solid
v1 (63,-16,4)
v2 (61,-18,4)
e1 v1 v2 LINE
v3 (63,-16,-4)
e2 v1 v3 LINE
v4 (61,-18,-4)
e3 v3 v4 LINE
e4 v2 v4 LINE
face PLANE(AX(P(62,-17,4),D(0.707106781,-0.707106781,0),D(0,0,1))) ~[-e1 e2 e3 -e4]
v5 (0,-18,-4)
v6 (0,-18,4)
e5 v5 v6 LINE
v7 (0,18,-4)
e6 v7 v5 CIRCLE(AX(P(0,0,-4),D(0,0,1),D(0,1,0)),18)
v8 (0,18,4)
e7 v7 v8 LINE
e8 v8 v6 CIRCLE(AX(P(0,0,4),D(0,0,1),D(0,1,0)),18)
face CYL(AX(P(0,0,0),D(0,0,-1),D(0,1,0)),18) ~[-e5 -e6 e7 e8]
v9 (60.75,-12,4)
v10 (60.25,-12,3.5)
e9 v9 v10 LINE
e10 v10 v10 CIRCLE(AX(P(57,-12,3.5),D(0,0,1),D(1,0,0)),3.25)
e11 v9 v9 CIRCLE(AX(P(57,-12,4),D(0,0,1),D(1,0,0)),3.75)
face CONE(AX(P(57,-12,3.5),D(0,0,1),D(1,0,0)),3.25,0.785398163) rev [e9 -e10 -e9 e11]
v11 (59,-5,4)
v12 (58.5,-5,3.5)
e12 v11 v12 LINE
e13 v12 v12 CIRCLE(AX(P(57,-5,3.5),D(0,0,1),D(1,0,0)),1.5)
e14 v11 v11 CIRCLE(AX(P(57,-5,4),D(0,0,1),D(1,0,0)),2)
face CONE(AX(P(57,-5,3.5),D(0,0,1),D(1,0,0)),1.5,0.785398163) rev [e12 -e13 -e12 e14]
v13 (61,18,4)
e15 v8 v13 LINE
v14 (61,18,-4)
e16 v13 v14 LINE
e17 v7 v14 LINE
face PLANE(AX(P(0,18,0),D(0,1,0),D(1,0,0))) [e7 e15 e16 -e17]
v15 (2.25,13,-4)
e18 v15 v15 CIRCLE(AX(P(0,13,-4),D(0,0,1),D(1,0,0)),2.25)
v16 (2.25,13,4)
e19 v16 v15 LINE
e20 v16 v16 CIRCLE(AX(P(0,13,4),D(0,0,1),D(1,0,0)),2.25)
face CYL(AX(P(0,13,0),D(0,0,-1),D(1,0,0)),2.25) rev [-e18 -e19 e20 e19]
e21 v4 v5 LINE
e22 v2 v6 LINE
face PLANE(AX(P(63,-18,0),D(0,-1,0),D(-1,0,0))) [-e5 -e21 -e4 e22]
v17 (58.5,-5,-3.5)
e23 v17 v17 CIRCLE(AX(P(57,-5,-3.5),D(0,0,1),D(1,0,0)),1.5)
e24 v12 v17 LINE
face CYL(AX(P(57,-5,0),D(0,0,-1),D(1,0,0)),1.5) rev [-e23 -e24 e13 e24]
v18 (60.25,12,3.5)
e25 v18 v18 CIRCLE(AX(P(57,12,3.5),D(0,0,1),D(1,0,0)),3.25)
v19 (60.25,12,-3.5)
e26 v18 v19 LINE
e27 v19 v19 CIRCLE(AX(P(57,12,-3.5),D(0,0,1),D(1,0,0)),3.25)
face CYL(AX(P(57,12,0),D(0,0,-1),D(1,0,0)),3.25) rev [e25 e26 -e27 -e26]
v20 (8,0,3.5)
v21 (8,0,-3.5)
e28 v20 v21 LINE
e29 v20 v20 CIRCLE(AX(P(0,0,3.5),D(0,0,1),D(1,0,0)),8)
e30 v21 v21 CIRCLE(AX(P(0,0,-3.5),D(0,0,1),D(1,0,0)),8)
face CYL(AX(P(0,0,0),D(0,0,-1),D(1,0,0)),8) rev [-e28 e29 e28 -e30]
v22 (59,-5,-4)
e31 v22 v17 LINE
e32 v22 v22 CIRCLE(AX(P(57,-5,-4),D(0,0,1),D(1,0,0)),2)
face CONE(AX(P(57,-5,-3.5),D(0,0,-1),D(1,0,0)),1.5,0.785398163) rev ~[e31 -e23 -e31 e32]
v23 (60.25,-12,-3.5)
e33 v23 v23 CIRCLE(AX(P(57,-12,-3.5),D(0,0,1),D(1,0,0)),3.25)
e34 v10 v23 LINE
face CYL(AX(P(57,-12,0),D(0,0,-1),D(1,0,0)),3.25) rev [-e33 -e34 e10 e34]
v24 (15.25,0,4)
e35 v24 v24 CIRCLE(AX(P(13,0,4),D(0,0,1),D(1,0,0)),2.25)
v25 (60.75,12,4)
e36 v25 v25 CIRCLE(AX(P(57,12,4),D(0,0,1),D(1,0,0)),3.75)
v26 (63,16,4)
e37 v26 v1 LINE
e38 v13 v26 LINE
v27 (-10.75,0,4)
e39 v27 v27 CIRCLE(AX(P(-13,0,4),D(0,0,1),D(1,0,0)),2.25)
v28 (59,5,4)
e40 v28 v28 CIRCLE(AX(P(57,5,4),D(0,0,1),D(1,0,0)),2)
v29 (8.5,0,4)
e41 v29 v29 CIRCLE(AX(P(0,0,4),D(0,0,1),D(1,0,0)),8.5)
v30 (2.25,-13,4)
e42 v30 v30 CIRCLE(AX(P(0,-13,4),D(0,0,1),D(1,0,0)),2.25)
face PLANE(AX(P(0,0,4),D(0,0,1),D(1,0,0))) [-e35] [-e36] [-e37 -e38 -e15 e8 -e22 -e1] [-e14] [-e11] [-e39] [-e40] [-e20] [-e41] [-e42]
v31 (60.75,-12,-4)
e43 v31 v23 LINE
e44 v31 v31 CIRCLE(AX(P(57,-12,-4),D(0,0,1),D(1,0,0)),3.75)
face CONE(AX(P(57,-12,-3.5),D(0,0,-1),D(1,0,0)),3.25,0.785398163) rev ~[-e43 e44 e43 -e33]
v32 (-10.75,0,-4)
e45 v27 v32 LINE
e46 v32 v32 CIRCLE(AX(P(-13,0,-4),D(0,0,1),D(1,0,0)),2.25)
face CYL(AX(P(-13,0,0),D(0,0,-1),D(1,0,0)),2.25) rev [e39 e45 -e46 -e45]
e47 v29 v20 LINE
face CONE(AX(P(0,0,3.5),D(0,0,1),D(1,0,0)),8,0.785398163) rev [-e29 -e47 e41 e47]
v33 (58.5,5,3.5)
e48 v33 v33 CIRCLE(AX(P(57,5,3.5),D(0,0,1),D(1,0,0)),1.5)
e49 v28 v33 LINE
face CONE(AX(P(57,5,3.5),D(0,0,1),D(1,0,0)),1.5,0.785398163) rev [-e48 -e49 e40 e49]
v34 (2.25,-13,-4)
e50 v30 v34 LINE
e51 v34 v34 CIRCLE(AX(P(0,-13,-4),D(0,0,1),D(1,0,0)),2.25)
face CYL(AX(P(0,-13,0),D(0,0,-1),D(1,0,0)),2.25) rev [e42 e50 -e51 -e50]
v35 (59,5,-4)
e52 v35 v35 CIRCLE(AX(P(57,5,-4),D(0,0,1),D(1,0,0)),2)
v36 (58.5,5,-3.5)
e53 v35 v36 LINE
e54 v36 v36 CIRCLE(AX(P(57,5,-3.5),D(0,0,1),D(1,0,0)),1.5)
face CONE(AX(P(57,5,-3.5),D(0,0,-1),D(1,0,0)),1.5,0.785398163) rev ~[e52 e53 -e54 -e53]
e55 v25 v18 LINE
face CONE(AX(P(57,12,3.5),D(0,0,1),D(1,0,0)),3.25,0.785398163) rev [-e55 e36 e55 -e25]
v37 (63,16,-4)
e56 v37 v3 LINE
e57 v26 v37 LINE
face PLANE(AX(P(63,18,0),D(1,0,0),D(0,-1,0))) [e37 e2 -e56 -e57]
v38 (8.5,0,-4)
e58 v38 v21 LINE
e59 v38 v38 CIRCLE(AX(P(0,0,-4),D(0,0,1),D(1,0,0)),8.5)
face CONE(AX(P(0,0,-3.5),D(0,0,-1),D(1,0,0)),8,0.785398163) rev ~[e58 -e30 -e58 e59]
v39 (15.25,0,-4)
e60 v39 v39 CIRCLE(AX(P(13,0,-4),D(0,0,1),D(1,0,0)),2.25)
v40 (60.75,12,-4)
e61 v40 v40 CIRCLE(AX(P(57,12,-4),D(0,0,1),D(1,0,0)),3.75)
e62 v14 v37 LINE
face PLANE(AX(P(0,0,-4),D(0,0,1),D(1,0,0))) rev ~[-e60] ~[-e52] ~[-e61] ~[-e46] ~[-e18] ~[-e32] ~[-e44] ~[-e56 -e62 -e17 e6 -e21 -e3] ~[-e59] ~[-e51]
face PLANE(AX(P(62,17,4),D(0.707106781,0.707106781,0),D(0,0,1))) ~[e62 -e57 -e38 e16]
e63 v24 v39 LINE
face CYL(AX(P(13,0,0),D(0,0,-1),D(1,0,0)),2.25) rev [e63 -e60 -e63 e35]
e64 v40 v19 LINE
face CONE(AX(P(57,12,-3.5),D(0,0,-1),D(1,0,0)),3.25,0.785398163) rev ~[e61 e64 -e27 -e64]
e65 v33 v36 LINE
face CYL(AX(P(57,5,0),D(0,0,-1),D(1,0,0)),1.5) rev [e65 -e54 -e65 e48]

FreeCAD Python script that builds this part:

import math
import FreeCAD as App
import Part
import Sketcher
from FreeCAD import Vector
Q = App.Units.Quantity


def edges_at(feature, points):
    """Names of the edges that pass closest to the given points."""
    edges = feature.Shape.Edges
    near = lambda p: min(range(len(edges)), key=lambda i: edges[i].distToShape(Part.Vertex(*p))[0])
    return sorted({f"Edge{near(p) + 1}" for p in points})

doc = App.newDocument("Part")
body = doc.addObject("PartDesign::Body", "Body")

# Sketch on XY plane
sketch1 = body.newObject("Sketcher::SketchObject", "Sketch")
sketch1.AttachmentSupport = (doc.getObject("XY_Plane"), [""])
sketch1.MapMode = "FlatFace"
sketch1.addGeometry([
    Part.LineSegment(Vector(63, 18, 0), Vector(0, 18, 0)),  # 0
    Part.ArcOfCircle(Part.Circle(Vector(0, 0, 0), Vector(0, 0, 1), 18), math.radians(90), math.radians(270)),  # 1
    Part.LineSegment(Vector(0, -18, 0), Vector(63, -18, 0)),  # 2
    Part.LineSegment(Vector(63, -18, 0), Vector(63, 18, 0)),  # 3
    Part.Circle(Vector(0, -13, 0), Vector(0, 0, 1), 2.2),  # 4
    Part.Circle(Vector(57, -12, 0), Vector(0, 0, 1), 3.2),  # 5
    Part.Circle(Vector(57, -5, 0), Vector(0, 0, 1), 1.5),  # 6
    Part.Circle(Vector(-13, 0, 0), Vector(0, 0, 1), 2.2),  # 7
    Part.Circle(Vector(0, 0, 0), Vector(0, 0, 1), 8),  # 8
    Part.Circle(Vector(13, 0, 0), Vector(0, 0, 1), 2.2),  # 9
    Part.Circle(Vector(0, 13, 0), Vector(0, 0, 1), 2.2),  # 10
    Part.Circle(Vector(57, 5, 0), Vector(0, 0, 1), 1.5),  # 11
    Part.Circle(Vector(57, 12, 0), Vector(0, 0, 1), 3.2),  # 12
], False)
sketch1.addConstraint([
    Sketcher.Constraint("Tangent", 0, 2, 1, 1),
    Sketcher.Constraint("Tangent", 1, 2, 2, 1),
    Sketcher.Constraint("Coincident", 2, 2, 3, 1),
    Sketcher.Constraint("Coincident", 3, 2, 0, 1),
    Sketcher.Constraint("Horizontal", 0),
    Sketcher.Constraint("Horizontal", 2),
    Sketcher.Constraint("Vertical", 3),
    Sketcher.Constraint("Coincident", 1, 3, -1, 1),
    Sketcher.Constraint("Coincident", 8, 3, -1, 1),
    Sketcher.Constraint("Equal", 4, 7),
    Sketcher.Constraint("Equal", 7, 9),
    Sketcher.Constraint("Equal", 9, 10),
    Sketcher.Constraint("Equal", 6, 11),
    Sketcher.Constraint("Equal", 5, 12),
    Sketcher.Constraint("Symmetric", 7, 3, 9, 3, -1, 1),
    Sketcher.Constraint("Symmetric", 4, 3, 10, 3, -1, 1),
    Sketcher.Constraint("Symmetric", 6, 3, 11, 3, -1),
    Sketcher.Constraint("Symmetric", 5, 3, 12, 3, -1),
    Sketcher.Constraint("PointOnObject", 4, 3, -2),
    Sketcher.Constraint("PointOnObject", 7, 3, -1),
    Sketcher.Constraint("Vertical", 5, 3, 6, 3),
    Sketcher.Constraint("Diameter", 6, Q("3 mm")),
    Sketcher.Constraint("Diameter", 8, Q("16 mm")),
    Sketcher.Constraint("Radius", 1, Q("18 mm")),
    Sketcher.Constraint("Diameter", 4, Q("4.5 mm")),
    Sketcher.Constraint("Diameter", 5, Q("6.5 mm")),
    Sketcher.Constraint("DistanceX", 0, 2, 0, 1, Q("63 mm")),
    Sketcher.Constraint("DistanceX", -1, 1, 5, 3, Q("57 mm")),
    Sketcher.Constraint("DistanceX", 7, 3, 9, 3, Q("26 mm")),
    Sketcher.Constraint("DistanceY", 4, 3, 10, 3, Q("26 mm")),
    Sketcher.Constraint("DistanceY", 6, 3, 11, 3, Q("10 mm")),
    Sketcher.Constraint("DistanceY", 5, 3, 12, 3, Q("24 mm")),
])
pad1 = body.newObject("PartDesign::Pad", "Pad")
pad1.Profile = sketch1
pad1.Length = 8
pad1.Midplane = True
doc.recompute()

chamfer = body.newObject("PartDesign::Chamfer", "Chamfer")
chamfer.Base = (pad1, edges_at(pad1, [
    (-8, 0, 4),
    (-8, 0, -4),
    (53.75, -12, 4),
    (53.75, -12, -4),
    (55.5, -5, 4),
    (55.5, -5, -4),
    (55.5, 5, -4),
    (55.5, 5, 4),
    (53.75, 12, 4),
    (53.75, 12, -4),
]))
chamfer.Size = 0.5
doc.recompute()

chamfer2 = body.newObject("PartDesign::Chamfer", "Chamfer001")
chamfer2.Base = (chamfer, edges_at(chamfer, [(63, 18, 0), (63, -18, 0)]))
chamfer2.Size = 2

doc.recompute()
